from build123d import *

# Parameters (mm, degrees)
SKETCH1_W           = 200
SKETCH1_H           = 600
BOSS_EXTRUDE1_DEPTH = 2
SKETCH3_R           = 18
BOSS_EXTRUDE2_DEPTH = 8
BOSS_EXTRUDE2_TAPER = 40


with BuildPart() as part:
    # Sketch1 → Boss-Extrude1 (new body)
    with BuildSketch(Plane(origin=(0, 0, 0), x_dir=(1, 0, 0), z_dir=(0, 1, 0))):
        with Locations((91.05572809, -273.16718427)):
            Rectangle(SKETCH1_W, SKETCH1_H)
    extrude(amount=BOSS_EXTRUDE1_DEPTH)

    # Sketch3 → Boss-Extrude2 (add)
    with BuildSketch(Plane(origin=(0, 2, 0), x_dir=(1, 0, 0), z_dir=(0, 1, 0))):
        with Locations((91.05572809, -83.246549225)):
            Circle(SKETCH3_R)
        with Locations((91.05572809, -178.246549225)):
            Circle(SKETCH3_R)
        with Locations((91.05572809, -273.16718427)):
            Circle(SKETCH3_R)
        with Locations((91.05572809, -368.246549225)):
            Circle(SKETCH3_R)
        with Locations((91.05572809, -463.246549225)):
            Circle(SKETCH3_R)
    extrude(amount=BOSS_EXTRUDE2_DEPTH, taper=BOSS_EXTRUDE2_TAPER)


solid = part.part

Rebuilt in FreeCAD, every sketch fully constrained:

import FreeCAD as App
import Part
import Sketcher
from FreeCAD import Vector

doc = App.newDocument("Part")
body = doc.addObject("PartDesign::Body", "Body")

sketch1 = doc.addObject("Sketcher::SketchObject", "Sketch")
body.addObject(sketch1)
sketch1.AttachmentSupport = (doc.XZ_Plane, [""])
sketch1.MapMode = "FlatFace"
sketch1.addGeometry(Part.LineSegment(Vector(-9, -27, 0), Vector(-9, 573, 0)), False)
sketch1.addGeometry(Part.LineSegment(Vector(-9, 573, 0), Vector(191, 573, 0)), False)
sketch1.addGeometry(Part.LineSegment(Vector(191, 573, 0), Vector(191, -27, 0)), False)
sketch1.addGeometry(Part.LineSegment(Vector(191, -27, 0), Vector(-9, -27, 0)), False)
sketch1.addConstraint(Sketcher.Constraint("Coincident", 0, 2, 1, 1))
sketch1.addConstraint(Sketcher.Constraint("Coincident", 1, 2, 2, 1))
sketch1.addConstraint(Sketcher.Constraint("Coincident", 2, 2, 3, 1))
sketch1.addConstraint(Sketcher.Constraint("Coincident", 3, 2, 0, 1))
sketch1.addConstraint(Sketcher.Constraint("Vertical", 0))
sketch1.addConstraint(Sketcher.Constraint("Horizontal", 1))
sketch1.addConstraint(Sketcher.Constraint("Vertical", 2))
sketch1.addConstraint(Sketcher.Constraint("Horizontal", 3))
sketch1.addConstraint(Sketcher.Constraint("DistanceX", 1, 1, 1, 2, 200.0))
sketch1.addConstraint(Sketcher.Constraint("DistanceY", 0, 1, 0, 2, 600.0))
sketch1.addConstraint(Sketcher.Constraint("DistanceX", 0, 2, -1, 1, 8.944272))
sketch1.addConstraint(Sketcher.Constraint("DistanceY", -1, 1, 0, 2, 573.167184))
pad1 = doc.addObject("PartDesign::Pad", "Pad")
body.addObject(pad1)
pad1.Profile = sketch1
pad1.Length = 2
pad1.Reversed = True

sketch2 = doc.addObject("Sketcher::SketchObject", "Sketch001")
body.addObject(sketch2)
sketch2.AttachmentSupport = (doc.XZ_Plane, [""])
sketch2.MapMode = "FlatFace"
sketch2.AttachmentOffset = App.Placement(Vector(0, 0, -2), App.Rotation())
sketch2.addGeometry(Part.Circle(Vector(91, 83, 0), Vector(0, 0, 1), 18), False)
sketch2.addGeometry(Part.Circle(Vector(91, 178, 0), Vector(0, 0, 1), 18), False)
sketch2.addGeometry(Part.Circle(Vector(91, 273, 0), Vector(0, 0, 1), 18), False)
sketch2.addGeometry(Part.Circle(Vector(91, 368, 0), Vector(0, 0, 1), 18), False)
sketch2.addGeometry(Part.Circle(Vector(91, 463, 0), Vector(0, 0, 1), 18), False)
sketch2.addConstraint(Sketcher.Constraint("Equal", 0, 1))
sketch2.addConstraint(Sketcher.Constraint("Equal", 1, 2))
sketch2.addConstraint(Sketcher.Constraint("Equal", 2, 3))
sketch2.addConstraint(Sketcher.Constraint("Equal", 3, 4))
sketch2.addConstraint(Sketcher.Constraint("Vertical", 0, 3, 1, 3))
sketch2.addConstraint(Sketcher.Constraint("Vertical", 1, 3, 2, 3))
sketch2.addConstraint(Sketcher.Constraint("Vertical", 2, 3, 3, 3))
sketch2.addConstraint(Sketcher.Constraint("Vertical", 3, 3, 4, 3))
sketch2.addConstraint(Sketcher.Constraint("Diameter", 0, 36.0))
sketch2.addConstraint(Sketcher.Constraint("DistanceY", 0, 3, 1, 3, 95.0))
sketch2.addConstraint(Sketcher.Constraint("DistanceY", 1, 3, 3, 3, 190.0))
sketch2.addConstraint(Sketcher.Constraint("DistanceY", 3, 3, 4, 3, 95.0))
sketch2.addConstraint(Sketcher.Constraint("DistanceX", -1, 1, 0, 3, 91.055728))
sketch2.addConstraint(Sketcher.Constraint("DistanceY", -1, 1, 0, 3, 83.246549))
sketch2.addConstraint(Sketcher.Constraint("DistanceY", -1, 1, 2, 3, 273.167184))
pad2 = doc.addObject("PartDesign::Pad", "Pad001")
body.addObject(pad2)
pad2.Profile = sketch2
pad2.Length = 8
pad2.Reversed = True
pad2.TaperAngle = -40

doc.recompute()
